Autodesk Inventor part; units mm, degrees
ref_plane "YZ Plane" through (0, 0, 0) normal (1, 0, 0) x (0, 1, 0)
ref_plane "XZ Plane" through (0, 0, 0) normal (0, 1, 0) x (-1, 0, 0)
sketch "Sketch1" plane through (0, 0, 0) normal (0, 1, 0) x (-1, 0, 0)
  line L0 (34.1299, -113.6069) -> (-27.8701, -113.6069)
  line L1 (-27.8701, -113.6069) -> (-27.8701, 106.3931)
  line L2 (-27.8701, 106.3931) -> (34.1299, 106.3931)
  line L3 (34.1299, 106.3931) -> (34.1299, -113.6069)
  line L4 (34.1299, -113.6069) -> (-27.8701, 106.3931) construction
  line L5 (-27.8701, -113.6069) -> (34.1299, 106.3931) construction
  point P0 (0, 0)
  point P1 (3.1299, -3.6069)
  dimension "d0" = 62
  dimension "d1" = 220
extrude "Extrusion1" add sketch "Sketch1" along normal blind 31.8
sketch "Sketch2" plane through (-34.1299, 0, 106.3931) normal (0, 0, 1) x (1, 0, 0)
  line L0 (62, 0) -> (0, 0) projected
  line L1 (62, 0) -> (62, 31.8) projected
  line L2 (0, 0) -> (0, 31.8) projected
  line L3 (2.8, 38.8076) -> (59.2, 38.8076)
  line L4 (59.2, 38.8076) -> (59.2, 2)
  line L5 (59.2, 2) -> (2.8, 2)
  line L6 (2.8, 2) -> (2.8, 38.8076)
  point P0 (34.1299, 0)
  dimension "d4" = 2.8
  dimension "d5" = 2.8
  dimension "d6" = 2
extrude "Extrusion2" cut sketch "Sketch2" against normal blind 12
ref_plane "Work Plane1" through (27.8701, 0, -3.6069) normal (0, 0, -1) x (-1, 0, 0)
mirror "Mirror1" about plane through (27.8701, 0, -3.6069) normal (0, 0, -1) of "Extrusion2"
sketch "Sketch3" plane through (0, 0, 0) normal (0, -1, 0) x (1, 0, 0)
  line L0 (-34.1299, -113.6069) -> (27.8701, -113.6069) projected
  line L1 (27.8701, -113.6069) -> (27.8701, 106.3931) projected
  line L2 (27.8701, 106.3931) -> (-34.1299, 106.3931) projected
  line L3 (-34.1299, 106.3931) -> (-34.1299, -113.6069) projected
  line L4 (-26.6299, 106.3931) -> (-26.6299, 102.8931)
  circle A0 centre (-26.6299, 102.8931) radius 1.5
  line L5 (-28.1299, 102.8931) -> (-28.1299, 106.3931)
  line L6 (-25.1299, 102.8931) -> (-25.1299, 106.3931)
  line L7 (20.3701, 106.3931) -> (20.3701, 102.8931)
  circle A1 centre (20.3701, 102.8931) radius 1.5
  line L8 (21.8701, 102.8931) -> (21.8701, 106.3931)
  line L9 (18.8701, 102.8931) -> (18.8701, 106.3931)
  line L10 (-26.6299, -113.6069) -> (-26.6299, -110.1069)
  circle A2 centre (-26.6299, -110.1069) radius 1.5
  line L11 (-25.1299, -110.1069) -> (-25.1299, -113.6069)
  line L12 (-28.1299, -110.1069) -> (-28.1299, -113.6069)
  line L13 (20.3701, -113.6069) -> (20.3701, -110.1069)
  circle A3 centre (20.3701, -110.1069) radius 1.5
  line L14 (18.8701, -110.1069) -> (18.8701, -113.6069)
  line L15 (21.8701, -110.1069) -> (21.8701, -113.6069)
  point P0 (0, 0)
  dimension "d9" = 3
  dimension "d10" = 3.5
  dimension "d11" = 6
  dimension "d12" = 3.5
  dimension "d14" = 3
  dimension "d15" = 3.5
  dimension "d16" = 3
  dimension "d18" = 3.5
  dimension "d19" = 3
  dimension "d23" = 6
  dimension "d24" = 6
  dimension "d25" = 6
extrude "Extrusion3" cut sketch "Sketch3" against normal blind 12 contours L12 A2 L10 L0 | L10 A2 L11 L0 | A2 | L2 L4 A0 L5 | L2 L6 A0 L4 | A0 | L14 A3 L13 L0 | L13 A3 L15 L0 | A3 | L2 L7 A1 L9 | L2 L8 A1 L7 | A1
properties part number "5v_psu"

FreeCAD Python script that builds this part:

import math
import FreeCAD as App
import Part
import Sketcher
Q = App.Units.Quantity

doc = App.newDocument("Part")
params = doc.addObject("Spreadsheet::Sheet", "Params")
for row, (alias, value) in enumerate([
    ("sketch1_width", "62 mm"),
    ("sketch1_height", "220 mm"),
    ("pad1_length", "31.8 mm"),
    ("sketch2_width", "56.4 mm"),
    ("pocket1_length", "12 mm"),
    ("sketch3_radius", "1.5 mm"),
    ("sketch3_height", "3.5 mm"),
    ("pocket2_length", "12 mm"),
], start=1):
    params.set(f"A{row}", alias)
    params.set(f"B{row}", "=" + value)
    params.setAlias(f"B{row}", alias)

body = doc.addObject("PartDesign::Body", "Body")

# Sketch on XZ plane
sketch1 = body.newObject("Sketcher::SketchObject", "Sketch")
sketch1.AttachmentSupport = (doc.getObject("XZ_Plane"), [""])
sketch1.MapMode = "FlatFace"
sketch1.addGeometry([
    Part.LineSegment(App.Vector(28, -114, 0), App.Vector(-34, -114, 0)),
    Part.LineSegment(App.Vector(-34, -114, 0), App.Vector(-34, 106, 0)),
    Part.LineSegment(App.Vector(-34, 106, 0), App.Vector(28, 106, 0)),
    Part.LineSegment(App.Vector(28, 106, 0), App.Vector(28, -114, 0)),
], False)
sketch1.addConstraint([
    Sketcher.Constraint("Coincident", 0, 2, 1, 1),
    Sketcher.Constraint("Coincident", 1, 2, 2, 1),
    Sketcher.Constraint("Coincident", 2, 2, 3, 1),
    Sketcher.Constraint("Coincident", 3, 2, 0, 1),
    Sketcher.Constraint("Horizontal", 0),
    Sketcher.Constraint("Vertical", 1),
    Sketcher.Constraint("Horizontal", 2),
    Sketcher.Constraint("Vertical", 3),
    Sketcher.Constraint("DistanceX", 0, 2, 0, 1, Q("62 mm")),
    Sketcher.Constraint("DistanceY", 1, 1, 1, 2, Q("220 mm")),
    Sketcher.Constraint("DistanceX", 0, 2, -1, 1, Q("34.13 mm")),
    Sketcher.Constraint("DistanceY", 0, 2, -1, 1, Q("113.607 mm")),
])
sketch1.setExpression("Constraints[8]", "Params.sketch1_width")
sketch1.setExpression("Constraints[9]", "Params.sketch1_height")
pad1 = body.newObject("PartDesign::Pad", "Pad")
pad1.Profile = sketch1
pad1.setExpression("Length", "Params.pad1_length")
pad1.Reversed = True

# Sketch on XY plane
sketch2 = body.newObject("Sketcher::SketchObject", "Sketch001")
sketch2.AttachmentSupport = (doc.getObject("XY_Plane"), [""])
sketch2.MapMode = "FlatFace"
sketch2.AttachmentOffset = App.Placement(App.Vector(0, 0, 106.3931), App.Rotation())
sketch2.addGeometry([
    Part.LineSegment(App.Vector(25, 39, 0), App.Vector(-31, 39, 0)),
    Part.LineSegment(App.Vector(-31, 39, 0), App.Vector(-31, 2, 0)),
    Part.LineSegment(App.Vector(-31, 2, 0), App.Vector(25, 2, 0)),
    Part.LineSegment(App.Vector(25, 2, 0), App.Vector(25, 39, 0)),
], False)
sketch2.addConstraint([
    Sketcher.Constraint("Coincident", 0, 2, 1, 1),
    Sketcher.Constraint("Coincident", 1, 2, 2, 1),
    Sketcher.Constraint("Coincident", 2, 2, 3, 1),
    Sketcher.Constraint("Coincident", 3, 2, 0, 1),
    Sketcher.Constraint("Horizontal", 0),
    Sketcher.Constraint("Vertical", 1),
    Sketcher.Constraint("Horizontal", 2),
    Sketcher.Constraint("Vertical", 3),
    Sketcher.Constraint("DistanceY", -1, 1, 1, 2, Q("2 mm")),
    Sketcher.Constraint("DistanceX", 0, 2, 0, 1, Q("56.4 mm")),
    Sketcher.Constraint("DistanceX", 0, 2, -1, 1, Q("31.33 mm")),
    Sketcher.Constraint("DistanceY", 1, 2, 1, 1, Q("36.8076 mm")),
])
sketch2.setExpression("Constraints[9]", "Params.sketch2_width")
pocket1 = body.newObject("PartDesign::Pocket", "Pocket")
pocket1.Profile = sketch2
pocket1.setExpression("Length", "Params.pocket1_length")
doc.recompute()

datumplane = body.newObject("PartDesign::Plane", "DatumPlane")
datumplane.AttachmentSupport = (doc.getObject("XY_Plane"), [""])
datumplane.MapMode = "FlatFace"
datumplane.AttachmentOffset = App.Placement(App.Vector(0, 0, -3.6069), App.Rotation())
mirrored = body.newObject("PartDesign::Mirrored", "Mirrored")
mirrored.Originals = [pocket1]
mirrored.MirrorPlane = (datumplane, [""])
body.Tip = mirrored

# Sketch on XZ plane
sketch3 = body.newObject("Sketcher::SketchObject", "Sketch002")
sketch3.AttachmentSupport = (doc.getObject("XZ_Plane"), [""])
sketch3.MapMode = "FlatFace"
sketch3.addGeometry([
    Part.LineSegment(App.Vector(-28.1, -110.1, 0), App.Vector(-28.1, -113.6, 0)),  # 0
    Part.LineSegment(App.Vector(-28.1, -113.6, 0), App.Vector(-25.1, -113.6, 0)),  # 1
    Part.LineSegment(App.Vector(-25.1, -113.6, 0), App.Vector(-25.1, -110.1, 0)),  # 2
    Part.ArcOfCircle(Part.Circle(App.Vector(-26.6, -110.1, 0), App.Vector(0, 0, 1), 1.5), math.radians(0), math.radians(180)),  # 3
    Part.LineSegment(App.Vector(-28.1, 106.4, 0), App.Vector(-28.1, 102.9, 0)),  # 4
    Part.ArcOfCircle(Part.Circle(App.Vector(-26.6, 102.9, 0), App.Vector(0, 0, 1), 1.5), math.radians(180), math.radians(360)),  # 5
    Part.LineSegment(App.Vector(-25.1, 102.9, 0), App.Vector(-25.1, 106.4, 0)),  # 6
    Part.LineSegment(App.Vector(-25.1, 106.4, 0), App.Vector(-28.1, 106.4, 0)),  # 7
    Part.LineSegment(App.Vector(18.9, -110.1, 0), App.Vector(18.9, -113.6, 0)),  # 8
    Part.LineSegment(App.Vector(18.9, -113.6, 0), App.Vector(21.9, -113.6, 0)),  # 9
    Part.LineSegment(App.Vector(21.9, -113.6, 0), App.Vector(21.9, -110.1, 0)),  # 10
    Part.ArcOfCircle(Part.Circle(App.Vector(20.4, -110.1, 0), App.Vector(0, 0, 1), 1.5), math.radians(0), math.radians(180)),  # 11
    Part.LineSegment(App.Vector(18.9, 106.4, 0), App.Vector(18.9, 102.9, 0)),  # 12
    Part.ArcOfCircle(Part.Circle(App.Vector(20.4, 102.9, 0), App.Vector(0, 0, 1), 1.5), math.radians(180), math.radians(360)),  # 13
    Part.LineSegment(App.Vector(21.9, 102.9, 0), App.Vector(21.9, 106.4, 0)),  # 14
    Part.LineSegment(App.Vector(21.9, 106.4, 0), App.Vector(18.9, 106.4, 0)),  # 15
], False)
sketch3.addConstraint([
    Sketcher.Constraint("Coincident", 0, 2, 1, 1),
    Sketcher.Constraint("Coincident", 1, 2, 2, 1),
    Sketcher.Constraint("Tangent", 2, 2, 3, 1),
    Sketcher.Constraint("Tangent", 3, 2, 0, 1),
    Sketcher.Constraint("Tangent", 4, 2, 5, 1),
    Sketcher.Constraint("Tangent", 5, 2, 6, 1),
    Sketcher.Constraint("Coincident", 6, 2, 7, 1),
    Sketcher.Constraint("Coincident", 7, 2, 4, 1),
    Sketcher.Constraint("Coincident", 8, 2, 9, 1),
    Sketcher.Constraint("Coincident", 9, 2, 10, 1),
    Sketcher.Constraint("Tangent", 10, 2, 11, 1),
    Sketcher.Constraint("Tangent", 11, 2, 8, 1),
    Sketcher.Constraint("Tangent", 12, 2, 13, 1),
    Sketcher.Constraint("Tangent", 13, 2, 14, 1),
    Sketcher.Constraint("Coincident", 14, 2, 15, 1),
    Sketcher.Constraint("Coincident", 15, 2, 12, 1),
    Sketcher.Constraint("Vertical", 0),
    Sketcher.Constraint("Horizontal", 1),
    Sketcher.Constraint("Vertical", 2),
    Sketcher.Constraint("Vertical", 4),
    Sketcher.Constraint("Vertical", 6),
    Sketcher.Constraint("Horizontal", 7),
    Sketcher.Constraint("Vertical", 8),
    Sketcher.Constraint("Horizontal", 9),
    Sketcher.Constraint("Vertical", 10),
    Sketcher.Constraint("Vertical", 12),
    Sketcher.Constraint("Vertical", 14),
    Sketcher.Constraint("Horizontal", 15),
    Sketcher.Constraint("Equal", 3, 5),
    Sketcher.Constraint("Equal", 5, 11),
    Sketcher.Constraint("Equal", 11, 13),
    Sketcher.Constraint("Horizontal", 3, 3, 11, 3),
    Sketcher.Constraint("Horizontal", 5, 3, 13, 3),
    Sketcher.Constraint("Horizontal", 1, 2, 8, 2),
    Sketcher.Constraint("Horizontal", 7, 2, 14, 2),
    Sketcher.Constraint("Vertical", 3, 3, 5, 3),
    Sketcher.Constraint("Vertical", 11, 3, 13, 3),
    Sketcher.Constraint("Equal", 2, 4),
    Sketcher.Constraint("Radius", 3, Q("1.5 mm")),
    Sketcher.Constraint("DistanceY", 0, 2, 0, 1, Q("3.5 mm")),
    Sketcher.Constraint("DistanceY", 3, 3, 5, 3, Q("213 mm")),
    Sketcher.Constraint("DistanceX", 3, 3, 11, 3, Q("47 mm")),
    Sketcher.Constraint("DistanceX", 3, 3, -1, 1, Q("26.63 mm")),
    Sketcher.Constraint("DistanceY", 3, 3, -1, 1, Q("110.107 mm")),
])
sketch3.setExpression("Constraints[38]", "Params.sketch3_radius")
sketch3.setExpression("Constraints[39]", "Params.sketch3_height")
pocket2 = body.newObject("PartDesign::Pocket", "Pocket001")
pocket2.Profile = sketch3
pocket2.setExpression("Length", "Params.pocket2_length")

doc.recompute()
